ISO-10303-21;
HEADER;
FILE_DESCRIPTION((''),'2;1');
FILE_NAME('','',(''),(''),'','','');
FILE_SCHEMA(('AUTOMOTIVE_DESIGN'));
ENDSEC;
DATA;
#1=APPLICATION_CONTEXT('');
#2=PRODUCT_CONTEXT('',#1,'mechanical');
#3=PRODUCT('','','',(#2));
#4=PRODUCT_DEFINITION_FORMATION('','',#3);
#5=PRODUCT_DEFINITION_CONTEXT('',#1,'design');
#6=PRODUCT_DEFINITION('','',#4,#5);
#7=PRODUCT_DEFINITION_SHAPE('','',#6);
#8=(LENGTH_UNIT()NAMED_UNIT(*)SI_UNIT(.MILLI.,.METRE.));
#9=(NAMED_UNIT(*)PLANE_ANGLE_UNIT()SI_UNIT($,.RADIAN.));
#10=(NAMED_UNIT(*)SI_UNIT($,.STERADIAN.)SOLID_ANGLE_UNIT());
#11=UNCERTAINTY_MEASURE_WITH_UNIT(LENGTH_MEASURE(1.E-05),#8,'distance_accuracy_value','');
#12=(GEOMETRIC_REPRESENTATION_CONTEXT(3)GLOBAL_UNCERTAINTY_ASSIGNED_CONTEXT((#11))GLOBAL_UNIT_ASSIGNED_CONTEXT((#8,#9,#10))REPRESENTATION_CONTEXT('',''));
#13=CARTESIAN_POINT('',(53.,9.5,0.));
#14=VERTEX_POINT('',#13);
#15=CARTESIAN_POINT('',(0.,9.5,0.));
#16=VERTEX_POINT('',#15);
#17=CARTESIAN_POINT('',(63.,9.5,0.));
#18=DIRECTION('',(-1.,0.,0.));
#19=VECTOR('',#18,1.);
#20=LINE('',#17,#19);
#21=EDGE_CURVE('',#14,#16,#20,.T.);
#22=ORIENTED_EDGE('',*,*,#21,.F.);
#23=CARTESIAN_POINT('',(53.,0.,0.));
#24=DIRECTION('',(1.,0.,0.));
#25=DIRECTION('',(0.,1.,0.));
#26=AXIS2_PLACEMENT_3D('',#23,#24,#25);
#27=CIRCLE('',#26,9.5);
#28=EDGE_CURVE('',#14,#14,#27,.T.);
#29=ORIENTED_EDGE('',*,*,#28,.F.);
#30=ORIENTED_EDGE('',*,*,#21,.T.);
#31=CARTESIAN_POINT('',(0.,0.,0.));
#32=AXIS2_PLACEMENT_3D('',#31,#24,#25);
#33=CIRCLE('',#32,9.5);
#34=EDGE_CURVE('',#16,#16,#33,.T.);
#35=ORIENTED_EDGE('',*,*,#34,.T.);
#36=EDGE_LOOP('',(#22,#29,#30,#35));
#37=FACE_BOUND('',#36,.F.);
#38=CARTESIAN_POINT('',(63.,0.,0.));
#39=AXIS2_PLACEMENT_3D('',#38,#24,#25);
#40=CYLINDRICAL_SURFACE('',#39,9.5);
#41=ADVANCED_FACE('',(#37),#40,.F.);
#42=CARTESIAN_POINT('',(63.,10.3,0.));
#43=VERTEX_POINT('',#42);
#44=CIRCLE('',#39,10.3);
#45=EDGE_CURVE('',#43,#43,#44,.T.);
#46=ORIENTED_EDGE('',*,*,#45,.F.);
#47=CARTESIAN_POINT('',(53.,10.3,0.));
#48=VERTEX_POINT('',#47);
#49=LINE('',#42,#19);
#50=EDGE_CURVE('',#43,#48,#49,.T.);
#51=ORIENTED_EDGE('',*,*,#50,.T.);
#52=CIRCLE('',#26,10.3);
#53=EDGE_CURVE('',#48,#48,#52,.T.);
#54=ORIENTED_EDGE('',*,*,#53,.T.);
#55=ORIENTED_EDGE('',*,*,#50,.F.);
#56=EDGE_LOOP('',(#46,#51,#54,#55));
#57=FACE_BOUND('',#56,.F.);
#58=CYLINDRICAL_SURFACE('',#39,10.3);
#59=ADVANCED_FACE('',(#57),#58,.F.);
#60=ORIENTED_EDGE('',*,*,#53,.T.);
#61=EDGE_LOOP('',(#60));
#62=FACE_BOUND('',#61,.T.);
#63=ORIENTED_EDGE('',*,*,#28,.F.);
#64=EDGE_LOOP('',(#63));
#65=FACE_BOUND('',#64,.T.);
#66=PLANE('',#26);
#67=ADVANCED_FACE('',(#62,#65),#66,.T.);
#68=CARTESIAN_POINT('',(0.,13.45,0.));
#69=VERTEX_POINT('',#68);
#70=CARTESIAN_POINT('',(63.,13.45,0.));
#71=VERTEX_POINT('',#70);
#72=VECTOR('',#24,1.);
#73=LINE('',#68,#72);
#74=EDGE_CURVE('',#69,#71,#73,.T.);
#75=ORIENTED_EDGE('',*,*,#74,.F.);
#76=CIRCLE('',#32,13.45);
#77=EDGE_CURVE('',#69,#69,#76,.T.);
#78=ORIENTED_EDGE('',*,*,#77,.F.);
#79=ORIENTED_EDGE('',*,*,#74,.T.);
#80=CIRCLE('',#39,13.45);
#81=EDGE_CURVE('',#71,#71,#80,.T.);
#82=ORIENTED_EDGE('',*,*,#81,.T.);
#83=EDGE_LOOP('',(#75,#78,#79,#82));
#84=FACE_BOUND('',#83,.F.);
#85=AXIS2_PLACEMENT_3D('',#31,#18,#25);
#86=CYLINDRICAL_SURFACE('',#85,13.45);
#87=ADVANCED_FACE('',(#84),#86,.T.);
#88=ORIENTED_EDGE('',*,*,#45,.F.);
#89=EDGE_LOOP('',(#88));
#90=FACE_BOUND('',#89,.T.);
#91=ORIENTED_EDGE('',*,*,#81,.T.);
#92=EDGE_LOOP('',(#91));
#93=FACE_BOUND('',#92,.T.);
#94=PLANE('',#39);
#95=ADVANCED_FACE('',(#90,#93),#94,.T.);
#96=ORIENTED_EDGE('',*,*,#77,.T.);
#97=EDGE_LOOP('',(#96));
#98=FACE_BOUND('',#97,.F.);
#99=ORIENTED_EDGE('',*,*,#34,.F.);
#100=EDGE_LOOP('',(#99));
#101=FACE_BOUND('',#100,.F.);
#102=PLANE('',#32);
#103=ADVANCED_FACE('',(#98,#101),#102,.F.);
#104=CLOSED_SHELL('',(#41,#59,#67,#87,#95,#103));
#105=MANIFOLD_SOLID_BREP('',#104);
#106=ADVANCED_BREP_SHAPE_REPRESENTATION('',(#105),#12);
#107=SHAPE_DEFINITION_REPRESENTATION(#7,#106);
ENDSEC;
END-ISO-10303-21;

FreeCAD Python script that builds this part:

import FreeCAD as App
import Part
import Sketcher

V = App.Vector
Q = App.Units.Quantity

doc = App.newDocument("Part")
body = doc.addObject("PartDesign::Body", "Body")

# Sketch on YZ plane
sketch1 = doc.addObject("Sketcher::SketchObject", "Sketch")
body.addObject(sketch1)
sketch1.AttachmentSupport = (doc.YZ_Plane, [""])
sketch1.MapMode = "FlatFace"
sketch1.addGeometry(Part.Circle(V(0, 0, 0), V(0, 0, 1), 13), False)
sketch1.addConstraint([
    Sketcher.Constraint("Coincident", 0, 3, -1, 1),
    Sketcher.Constraint("Diameter", 0, Q("26.9 mm")),
])
pad1 = doc.addObject("PartDesign::Pad", "Pad")
body.addObject(pad1)
pad1.Profile = sketch1
pad1.Length = 63

# Sketch on YZ plane
sketch2 = doc.addObject("Sketcher::SketchObject", "Sketch001")
body.addObject(sketch2)
sketch2.AttachmentSupport = (doc.YZ_Plane, [""])
sketch2.MapMode = "FlatFace"
sketch2.AttachmentOffset = App.Placement(V(0, 0, 63), App.Rotation())
sketch2.addGeometry(Part.Circle(V(0, 0, 0), V(0, 0, 1), 10), False)
sketch2.addConstraint([
    Sketcher.Constraint("Coincident", 0, 3, -1, 1),
    Sketcher.Constraint("Diameter", 0, Q("19 mm")),
])
pocket1 = doc.addObject("PartDesign::Pocket", "Pocket")
body.addObject(pocket1)
pocket1.Profile = sketch2
pocket1.Type = "ThroughAll"

# Sketch on YZ plane
sketch3 = doc.addObject("Sketcher::SketchObject", "Sketch002")
body.addObject(sketch3)
sketch3.AttachmentSupport = (doc.YZ_Plane, [""])
sketch3.MapMode = "FlatFace"
sketch3.AttachmentOffset = App.Placement(V(0, 0, 63), App.Rotation())
sketch3.addGeometry(Part.Circle(V(0, 0, 0), V(0, 0, 1), 10), False)
sketch3.addConstraint([
    Sketcher.Constraint("Coincident", 0, 3, -1, 1),
    Sketcher.Constraint("Diameter", 0, Q("20.6 mm")),
])
pocket2 = doc.addObject("PartDesign::Pocket", "Pocket001")
body.addObject(pocket2)
pocket2.Profile = sketch3
pocket2.Length = 10

doc.recompute()
